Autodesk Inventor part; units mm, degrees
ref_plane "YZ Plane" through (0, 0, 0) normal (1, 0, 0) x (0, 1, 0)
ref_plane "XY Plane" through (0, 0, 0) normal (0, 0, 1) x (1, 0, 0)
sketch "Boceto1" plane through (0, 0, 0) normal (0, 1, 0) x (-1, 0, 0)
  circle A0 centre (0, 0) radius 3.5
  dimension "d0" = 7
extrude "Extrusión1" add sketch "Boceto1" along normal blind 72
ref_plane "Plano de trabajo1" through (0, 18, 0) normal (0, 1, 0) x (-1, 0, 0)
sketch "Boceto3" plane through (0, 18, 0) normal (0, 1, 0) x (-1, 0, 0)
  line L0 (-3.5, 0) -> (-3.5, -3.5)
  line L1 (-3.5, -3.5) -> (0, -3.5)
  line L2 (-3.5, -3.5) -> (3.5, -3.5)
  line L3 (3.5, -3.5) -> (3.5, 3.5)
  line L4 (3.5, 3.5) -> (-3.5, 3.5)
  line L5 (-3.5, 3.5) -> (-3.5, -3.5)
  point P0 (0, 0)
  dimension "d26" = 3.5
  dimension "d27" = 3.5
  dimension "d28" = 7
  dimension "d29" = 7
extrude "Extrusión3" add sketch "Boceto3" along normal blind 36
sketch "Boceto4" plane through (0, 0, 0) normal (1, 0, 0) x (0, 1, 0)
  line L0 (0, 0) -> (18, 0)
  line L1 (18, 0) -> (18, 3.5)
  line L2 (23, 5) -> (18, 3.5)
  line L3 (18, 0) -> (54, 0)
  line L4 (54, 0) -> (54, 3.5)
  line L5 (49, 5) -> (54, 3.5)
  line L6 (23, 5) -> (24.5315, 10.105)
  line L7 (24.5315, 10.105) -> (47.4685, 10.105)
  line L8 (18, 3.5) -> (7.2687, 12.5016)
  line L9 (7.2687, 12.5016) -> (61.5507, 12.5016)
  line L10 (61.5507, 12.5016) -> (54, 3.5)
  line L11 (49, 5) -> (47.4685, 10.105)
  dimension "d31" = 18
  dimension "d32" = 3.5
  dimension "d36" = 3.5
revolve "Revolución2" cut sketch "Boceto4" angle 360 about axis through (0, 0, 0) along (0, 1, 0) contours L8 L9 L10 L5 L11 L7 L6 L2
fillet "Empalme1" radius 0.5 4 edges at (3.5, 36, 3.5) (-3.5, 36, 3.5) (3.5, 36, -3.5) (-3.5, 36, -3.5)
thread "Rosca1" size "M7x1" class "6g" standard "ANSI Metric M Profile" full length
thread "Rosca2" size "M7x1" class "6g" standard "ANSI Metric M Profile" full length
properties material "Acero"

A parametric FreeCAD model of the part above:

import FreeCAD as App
import Part
import Sketcher
Q = App.Units.Quantity


def edges_at(feature, points):
    """Names of the edges that pass closest to the given points."""
    edges = feature.Shape.Edges
    near = lambda p: min(range(len(edges)), key=lambda i: edges[i].distToShape(Part.Vertex(*p))[0])
    return sorted({f"Edge{near(p) + 1}" for p in points})

doc = App.newDocument("Part")
params = doc.addObject("Spreadsheet::Sheet", "Params")
for row, (alias, value) in enumerate([
    ("sketch1_diameter", "7 mm"),
    ("pad1_length", "72 mm"),
    ("sketch2_width", "7 mm"),
    ("pad2_length", "36 mm"),
    ("groove_angle", "360 deg"),
    ("fillet_radius", "0.5 mm"),
], start=1):
    params.set(f"A{row}", alias)
    params.set(f"B{row}", "=" + value)
    params.setAlias(f"B{row}", alias)

body = doc.addObject("PartDesign::Body", "Body")

sketch1 = body.newObject("Sketcher::SketchObject", "Sketch")
sketch1.AttachmentSupport = (doc.getObject("XZ_Plane"), [""])
sketch1.MapMode = "FlatFace"
sketch1.addGeometry(Part.Circle(App.Vector(0, 0, 0), App.Vector(0, 0, 1), 3.5), False)
sketch1.addConstraint(Sketcher.Constraint("Coincident", 0, 3, -1, 1))
sketch1.addConstraint(Sketcher.Constraint("Diameter", 0, 7.0))
sketch1.setExpression("Constraints[1]", "Params.sketch1_diameter")
pad1 = body.newObject("PartDesign::Pad", "Pad")
pad1.Profile = sketch1
pad1.setExpression("Length", "Params.pad1_length")
pad1.Reversed = True

sketch2 = body.newObject("Sketcher::SketchObject", "Sketch001")
sketch2.AttachmentSupport = (doc.getObject("XZ_Plane"), [""])
sketch2.MapMode = "FlatFace"
sketch2.AttachmentOffset = App.Placement(App.Vector(0, 0, -18), App.Rotation())
sketch2.addGeometry(Part.LineSegment(App.Vector(3.5, 3.5, 0), App.Vector(3.5, -3.5, 0)), False)
sketch2.addGeometry(Part.LineSegment(App.Vector(3.5, -3.5, 0), App.Vector(-3.5, -3.5, 0)), False)
sketch2.addGeometry(Part.LineSegment(App.Vector(-3.5, -3.5, 0), App.Vector(-3.5, 3.5, 0)), False)
sketch2.addGeometry(Part.LineSegment(App.Vector(-3.5, 3.5, 0), App.Vector(3.5, 3.5, 0)), False)
sketch2.addConstraint(Sketcher.Constraint("Coincident", 0, 2, 1, 1))
sketch2.addConstraint(Sketcher.Constraint("Coincident", 1, 2, 2, 1))
sketch2.addConstraint(Sketcher.Constraint("Coincident", 2, 2, 3, 1))
sketch2.addConstraint(Sketcher.Constraint("Coincident", 3, 2, 0, 1))
sketch2.addConstraint(Sketcher.Constraint("Vertical", 0))
sketch2.addConstraint(Sketcher.Constraint("Horizontal", 1))
sketch2.addConstraint(Sketcher.Constraint("Vertical", 2))
sketch2.addConstraint(Sketcher.Constraint("Horizontal", 3))
sketch2.addConstraint(Sketcher.Constraint("Symmetric", 0, 2, 2, 2, -1, 1))
sketch2.addConstraint(Sketcher.Constraint("Equal", 3, 0))
sketch2.addConstraint(Sketcher.Constraint("DistanceX", 1, 2, 1, 1, 7.0))
sketch2.setExpression("Constraints[10]", "Params.sketch2_width")
pad2 = body.newObject("PartDesign::Pad", "Pad001")
pad2.Profile = sketch2
pad2.setExpression("Length", "Params.pad2_length")
pad2.Reversed = True

sketch3 = body.newObject("Sketcher::SketchObject", "Sketch002")
sketch3.AttachmentSupport = (doc.getObject("YZ_Plane"), [""])
sketch3.MapMode = "FlatFace"
sketch3.addGeometry(Part.LineSegment(App.Vector(7.2687, 12.5016, 0), App.Vector(18, 3.5, 0)), False)
sketch3.addGeometry(Part.LineSegment(App.Vector(18, 3.5, 0), App.Vector(23, 5, 0)), False)
sketch3.addGeometry(Part.LineSegment(App.Vector(23, 5, 0), App.Vector(24.5315, 10.105, 0)), False)
sketch3.addGeometry(Part.LineSegment(App.Vector(24.5315, 10.105, 0), App.Vector(47.4685, 10.105, 0)), False)
sketch3.addGeometry(Part.LineSegment(App.Vector(47.4685, 10.105, 0), App.Vector(49, 5, 0)), False)
sketch3.addGeometry(Part.LineSegment(App.Vector(49, 5, 0), App.Vector(54, 3.5, 0)), False)
sketch3.addGeometry(Part.LineSegment(App.Vector(54, 3.5, 0), App.Vector(61.5507, 12.5016, 0)), False)
sketch3.addGeometry(Part.LineSegment(App.Vector(61.5507, 12.5016, 0), App.Vector(7.2687, 12.5016, 0)), False)
sketch3.addConstraint(Sketcher.Constraint("Coincident", 0, 2, 1, 1))
sketch3.addConstraint(Sketcher.Constraint("Coincident", 1, 2, 2, 1))
sketch3.addConstraint(Sketcher.Constraint("Coincident", 2, 2, 3, 1))
sketch3.addConstraint(Sketcher.Constraint("Coincident", 3, 2, 4, 1))
sketch3.addConstraint(Sketcher.Constraint("Coincident", 4, 2, 5, 1))
sketch3.addConstraint(Sketcher.Constraint("Coincident", 5, 2, 6, 1))
sketch3.addConstraint(Sketcher.Constraint("Coincident", 6, 2, 7, 1))
sketch3.addConstraint(Sketcher.Constraint("Coincident", 7, 2, 0, 1))
sketch3.addConstraint(Sketcher.Constraint("Horizontal", 3))
sketch3.addConstraint(Sketcher.Constraint("Horizontal", 7))
sketch3.addConstraint(Sketcher.Constraint("Perpendicular", 1, 4))
sketch3.addConstraint(Sketcher.Constraint("Perpendicular", 2, 5))
sketch3.addConstraint(Sketcher.Constraint("Perpendicular", 0, 6))
sketch3.addConstraint(Sketcher.Constraint("Horizontal", 1, 2, 4, 2))
sketch3.addConstraint(Sketcher.Constraint("Horizontal", 0, 2, 5, 2))
sketch3.addConstraint(Sketcher.Constraint("Equal", 2, 4))
sketch3.addConstraint(Sketcher.Constraint("DistanceX", -1, 1, 0, 2, 18.0))
sketch3.addConstraint(Sketcher.Constraint("DistanceY", -1, 1, 0, 2, 3.5))
sketch3.addConstraint(Sketcher.Constraint("DistanceX", -1, 1, 1, 2, 23.0))
sketch3.addConstraint(Sketcher.Constraint("DistanceY", -1, 1, 1, 2, 5.0))
sketch3.addConstraint(Sketcher.Constraint("DistanceX", -1, 1, 4, 2, 49.0))
sketch3.addConstraint(Sketcher.Constraint("Angle", 0, Q("-39.9905 deg")))
sketch3.addConstraint(Sketcher.Constraint("DistanceX", 3, 1, 3, 2, 22.937))
sketch3.addConstraint(Sketcher.Constraint("DistanceX", 7, 2, 7, 1, 54.282))
groove = body.newObject("PartDesign::Groove", "Groove")
groove.Profile = sketch3
groove.ReferenceAxis = (sketch3, ["H_Axis"])
groove.setExpression("Angle", "Params.groove_angle")
doc.recompute()

fillet = body.newObject("PartDesign::Fillet", "Fillet")
fillet.Base = (groove, edges_at(groove, [
    (3.5, 36, 3.5),
    (-3.5, 36, 3.5),
    (3.5, 36, -3.5),
    (-3.5, 36, -3.5),
]))
fillet.setExpression("Radius", "Params.fillet_radius")

doc.recompute()
